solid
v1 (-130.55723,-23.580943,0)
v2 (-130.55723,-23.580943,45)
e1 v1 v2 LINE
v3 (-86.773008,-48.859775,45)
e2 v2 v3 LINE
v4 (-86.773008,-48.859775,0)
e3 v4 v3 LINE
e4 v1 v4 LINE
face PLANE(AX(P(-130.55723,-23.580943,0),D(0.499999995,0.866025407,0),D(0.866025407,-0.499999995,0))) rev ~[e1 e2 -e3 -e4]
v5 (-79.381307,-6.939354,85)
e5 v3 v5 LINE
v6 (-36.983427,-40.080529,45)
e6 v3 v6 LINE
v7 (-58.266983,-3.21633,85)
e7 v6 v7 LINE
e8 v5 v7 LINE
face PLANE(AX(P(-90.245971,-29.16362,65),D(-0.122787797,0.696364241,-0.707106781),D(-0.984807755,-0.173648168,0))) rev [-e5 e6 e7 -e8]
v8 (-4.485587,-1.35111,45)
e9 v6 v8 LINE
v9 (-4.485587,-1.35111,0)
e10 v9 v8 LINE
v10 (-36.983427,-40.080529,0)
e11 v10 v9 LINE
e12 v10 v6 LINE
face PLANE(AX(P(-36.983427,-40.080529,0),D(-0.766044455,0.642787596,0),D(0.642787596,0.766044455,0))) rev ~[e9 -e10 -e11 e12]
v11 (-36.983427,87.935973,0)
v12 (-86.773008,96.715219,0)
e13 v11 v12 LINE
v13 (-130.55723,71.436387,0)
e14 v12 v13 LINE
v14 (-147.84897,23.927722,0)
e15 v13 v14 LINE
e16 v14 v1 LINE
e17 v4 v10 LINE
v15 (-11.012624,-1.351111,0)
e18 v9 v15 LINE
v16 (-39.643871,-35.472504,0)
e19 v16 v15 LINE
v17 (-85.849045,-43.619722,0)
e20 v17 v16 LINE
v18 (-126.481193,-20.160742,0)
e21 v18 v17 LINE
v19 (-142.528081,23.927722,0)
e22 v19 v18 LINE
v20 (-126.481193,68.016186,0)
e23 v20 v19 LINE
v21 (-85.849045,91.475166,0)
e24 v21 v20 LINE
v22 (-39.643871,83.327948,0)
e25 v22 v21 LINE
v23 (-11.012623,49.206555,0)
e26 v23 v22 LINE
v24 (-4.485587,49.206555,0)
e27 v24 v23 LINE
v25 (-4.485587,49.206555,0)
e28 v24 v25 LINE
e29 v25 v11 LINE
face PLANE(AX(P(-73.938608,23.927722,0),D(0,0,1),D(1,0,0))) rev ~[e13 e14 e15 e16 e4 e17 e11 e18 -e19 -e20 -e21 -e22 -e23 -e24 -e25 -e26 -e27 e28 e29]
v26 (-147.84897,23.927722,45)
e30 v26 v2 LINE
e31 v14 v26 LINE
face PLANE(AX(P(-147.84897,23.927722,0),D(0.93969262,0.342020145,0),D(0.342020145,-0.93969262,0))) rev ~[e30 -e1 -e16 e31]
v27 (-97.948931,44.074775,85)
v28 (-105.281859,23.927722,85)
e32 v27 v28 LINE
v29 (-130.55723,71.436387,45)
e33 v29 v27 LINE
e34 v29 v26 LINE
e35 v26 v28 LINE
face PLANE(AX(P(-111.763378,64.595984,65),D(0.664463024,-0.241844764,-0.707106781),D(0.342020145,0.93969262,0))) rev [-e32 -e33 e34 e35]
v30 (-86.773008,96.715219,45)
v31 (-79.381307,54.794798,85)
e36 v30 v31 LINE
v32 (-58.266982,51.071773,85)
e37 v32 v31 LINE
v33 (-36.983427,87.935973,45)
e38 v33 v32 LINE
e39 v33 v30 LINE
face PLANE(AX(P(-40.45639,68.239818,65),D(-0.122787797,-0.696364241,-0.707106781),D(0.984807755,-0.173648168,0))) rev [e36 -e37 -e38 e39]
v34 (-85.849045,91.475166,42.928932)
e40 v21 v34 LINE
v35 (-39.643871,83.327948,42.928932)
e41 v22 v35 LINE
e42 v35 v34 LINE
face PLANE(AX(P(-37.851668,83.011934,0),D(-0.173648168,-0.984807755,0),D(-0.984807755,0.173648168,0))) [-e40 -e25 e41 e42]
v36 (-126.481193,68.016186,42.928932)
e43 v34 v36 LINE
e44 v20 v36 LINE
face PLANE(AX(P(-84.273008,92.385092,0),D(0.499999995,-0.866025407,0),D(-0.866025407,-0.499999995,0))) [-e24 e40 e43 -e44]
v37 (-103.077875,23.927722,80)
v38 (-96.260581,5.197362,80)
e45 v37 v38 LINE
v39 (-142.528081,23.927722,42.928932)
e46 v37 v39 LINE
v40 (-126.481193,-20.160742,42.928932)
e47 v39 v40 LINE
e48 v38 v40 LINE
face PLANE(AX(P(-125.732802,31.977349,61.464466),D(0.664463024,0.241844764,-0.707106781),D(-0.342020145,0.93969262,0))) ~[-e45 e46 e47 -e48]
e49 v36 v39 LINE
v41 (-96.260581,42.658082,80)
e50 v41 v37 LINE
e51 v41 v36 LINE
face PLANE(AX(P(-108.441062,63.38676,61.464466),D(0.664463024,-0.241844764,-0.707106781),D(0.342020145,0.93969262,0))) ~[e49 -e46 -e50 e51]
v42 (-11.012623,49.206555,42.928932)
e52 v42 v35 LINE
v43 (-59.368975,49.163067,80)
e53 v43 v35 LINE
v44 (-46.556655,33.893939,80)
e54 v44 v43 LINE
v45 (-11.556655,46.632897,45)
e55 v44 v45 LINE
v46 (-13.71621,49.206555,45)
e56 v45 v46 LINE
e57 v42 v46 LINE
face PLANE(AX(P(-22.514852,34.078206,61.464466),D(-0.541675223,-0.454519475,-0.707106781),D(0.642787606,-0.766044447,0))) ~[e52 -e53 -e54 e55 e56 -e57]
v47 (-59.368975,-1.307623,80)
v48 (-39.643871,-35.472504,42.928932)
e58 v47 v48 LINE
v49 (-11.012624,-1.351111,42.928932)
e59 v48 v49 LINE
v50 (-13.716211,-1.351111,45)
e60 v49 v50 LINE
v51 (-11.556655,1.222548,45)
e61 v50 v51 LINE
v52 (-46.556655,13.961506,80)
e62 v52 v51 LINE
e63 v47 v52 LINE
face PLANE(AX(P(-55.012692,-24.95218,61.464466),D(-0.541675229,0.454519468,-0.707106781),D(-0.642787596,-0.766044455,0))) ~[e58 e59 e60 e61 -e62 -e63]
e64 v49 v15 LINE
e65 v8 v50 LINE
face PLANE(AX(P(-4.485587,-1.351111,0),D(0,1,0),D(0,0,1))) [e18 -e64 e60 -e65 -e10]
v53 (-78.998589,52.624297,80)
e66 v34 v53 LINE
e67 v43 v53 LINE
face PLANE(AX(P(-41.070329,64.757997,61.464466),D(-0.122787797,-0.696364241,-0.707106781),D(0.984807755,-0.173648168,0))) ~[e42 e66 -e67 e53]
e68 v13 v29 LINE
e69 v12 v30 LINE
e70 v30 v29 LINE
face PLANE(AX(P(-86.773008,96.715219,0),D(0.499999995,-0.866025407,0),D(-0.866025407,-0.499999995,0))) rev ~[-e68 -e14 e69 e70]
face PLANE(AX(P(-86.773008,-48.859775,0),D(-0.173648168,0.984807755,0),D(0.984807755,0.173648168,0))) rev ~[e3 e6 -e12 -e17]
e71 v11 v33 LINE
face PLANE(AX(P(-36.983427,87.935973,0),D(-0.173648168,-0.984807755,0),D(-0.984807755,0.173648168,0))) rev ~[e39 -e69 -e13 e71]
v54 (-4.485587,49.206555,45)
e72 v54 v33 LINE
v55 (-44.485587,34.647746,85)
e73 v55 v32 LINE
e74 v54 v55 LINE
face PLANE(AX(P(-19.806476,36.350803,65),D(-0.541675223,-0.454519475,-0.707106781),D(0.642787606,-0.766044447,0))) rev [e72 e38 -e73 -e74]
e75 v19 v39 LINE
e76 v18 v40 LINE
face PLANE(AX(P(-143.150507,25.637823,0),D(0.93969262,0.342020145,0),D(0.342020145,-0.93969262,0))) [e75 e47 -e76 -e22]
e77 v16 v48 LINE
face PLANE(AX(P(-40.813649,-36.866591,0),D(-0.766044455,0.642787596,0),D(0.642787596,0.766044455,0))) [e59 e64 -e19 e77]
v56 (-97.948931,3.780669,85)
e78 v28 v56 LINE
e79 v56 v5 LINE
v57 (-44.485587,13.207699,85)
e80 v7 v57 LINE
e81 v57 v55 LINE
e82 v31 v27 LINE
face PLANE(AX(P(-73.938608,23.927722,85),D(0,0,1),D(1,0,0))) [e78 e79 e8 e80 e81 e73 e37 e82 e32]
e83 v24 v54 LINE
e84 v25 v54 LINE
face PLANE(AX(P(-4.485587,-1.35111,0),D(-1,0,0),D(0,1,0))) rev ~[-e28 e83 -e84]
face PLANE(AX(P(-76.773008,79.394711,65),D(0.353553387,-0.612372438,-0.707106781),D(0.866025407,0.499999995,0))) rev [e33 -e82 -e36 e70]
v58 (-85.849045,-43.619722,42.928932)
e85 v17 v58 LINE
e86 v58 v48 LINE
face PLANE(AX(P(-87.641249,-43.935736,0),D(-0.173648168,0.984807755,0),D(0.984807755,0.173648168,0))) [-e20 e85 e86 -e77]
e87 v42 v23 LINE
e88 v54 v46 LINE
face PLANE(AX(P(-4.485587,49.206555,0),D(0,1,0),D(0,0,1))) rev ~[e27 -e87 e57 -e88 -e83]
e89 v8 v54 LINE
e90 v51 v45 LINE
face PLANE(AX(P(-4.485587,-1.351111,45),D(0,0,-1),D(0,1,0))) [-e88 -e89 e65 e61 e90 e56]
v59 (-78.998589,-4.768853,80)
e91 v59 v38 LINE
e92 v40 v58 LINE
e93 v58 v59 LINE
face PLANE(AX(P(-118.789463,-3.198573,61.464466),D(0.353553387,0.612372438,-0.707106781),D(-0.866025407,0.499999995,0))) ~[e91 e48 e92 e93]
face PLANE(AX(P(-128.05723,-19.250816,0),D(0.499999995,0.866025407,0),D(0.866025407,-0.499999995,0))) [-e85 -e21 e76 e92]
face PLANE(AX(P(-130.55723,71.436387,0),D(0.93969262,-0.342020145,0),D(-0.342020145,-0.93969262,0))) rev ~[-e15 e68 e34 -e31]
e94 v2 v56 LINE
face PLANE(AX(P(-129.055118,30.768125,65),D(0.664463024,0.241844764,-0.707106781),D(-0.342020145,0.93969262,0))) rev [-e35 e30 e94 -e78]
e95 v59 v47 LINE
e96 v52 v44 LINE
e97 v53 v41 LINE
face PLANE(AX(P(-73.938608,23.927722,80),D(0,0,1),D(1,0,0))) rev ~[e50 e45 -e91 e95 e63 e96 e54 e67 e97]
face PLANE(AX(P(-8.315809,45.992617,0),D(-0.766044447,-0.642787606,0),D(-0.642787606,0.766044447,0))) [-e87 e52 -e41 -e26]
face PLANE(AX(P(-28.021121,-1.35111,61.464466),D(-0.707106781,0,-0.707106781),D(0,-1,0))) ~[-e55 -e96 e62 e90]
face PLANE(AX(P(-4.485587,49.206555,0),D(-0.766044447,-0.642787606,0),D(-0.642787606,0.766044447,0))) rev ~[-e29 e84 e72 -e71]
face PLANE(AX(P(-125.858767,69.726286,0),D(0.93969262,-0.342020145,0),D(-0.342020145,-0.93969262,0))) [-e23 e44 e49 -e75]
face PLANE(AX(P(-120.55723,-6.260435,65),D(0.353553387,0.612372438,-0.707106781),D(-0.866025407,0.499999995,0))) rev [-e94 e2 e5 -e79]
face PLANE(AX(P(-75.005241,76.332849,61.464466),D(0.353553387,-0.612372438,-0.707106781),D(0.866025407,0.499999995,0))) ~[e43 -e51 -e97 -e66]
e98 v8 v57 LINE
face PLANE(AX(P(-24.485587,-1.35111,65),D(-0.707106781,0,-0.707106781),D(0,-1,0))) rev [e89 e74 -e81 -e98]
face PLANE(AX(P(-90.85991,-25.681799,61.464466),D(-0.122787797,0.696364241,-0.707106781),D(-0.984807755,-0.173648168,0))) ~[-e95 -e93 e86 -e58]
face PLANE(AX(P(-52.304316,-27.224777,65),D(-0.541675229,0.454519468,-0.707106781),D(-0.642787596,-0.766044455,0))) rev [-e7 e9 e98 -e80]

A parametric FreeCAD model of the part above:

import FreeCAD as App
import Part
import Sketcher
Q = App.Units.Quantity


def edges_at(feature, points):
    """Names of the edges that pass closest to the given points."""
    edges = feature.Shape.Edges
    near = lambda p: min(range(len(edges)), key=lambda i: edges[i].distToShape(Part.Vertex(*p))[0])
    return sorted({f"Edge{near(p) + 1}" for p in points})


def faces_at(feature, points):
    """Names of the faces that lie closest to the given points."""
    faces = feature.Shape.Faces
    near = lambda p: min(range(len(faces)), key=lambda i: faces[i].distToShape(Part.Vertex(*p))[0])
    return sorted({f"Face{near(p) + 1}" for p in points})

doc = App.newDocument("Part")
body = doc.addObject("PartDesign::Body", "Body")

# Sketch on XY plane
sketch1 = doc.addObject("Sketcher::SketchObject", "Sketch")
body.addObject(sketch1)
sketch1.AttachmentSupport = (doc.XY_Plane, [""])
sketch1.MapMode = "FlatFace"
sketch1.addGeometry([
    Part.LineSegment(App.Vector(-4, -1, 0), App.Vector(-4, 49, 0)),  # 0
    Part.LineSegment(App.Vector(-4, 49, 0), App.Vector(-37, 88, 0)),  # 1
    Part.LineSegment(App.Vector(-37, 88, 0), App.Vector(-87, 97, 0)),  # 2
    Part.LineSegment(App.Vector(-87, 97, 0), App.Vector(-131, 71, 0)),  # 3
    Part.LineSegment(App.Vector(-131, 71, 0), App.Vector(-148, 24, 0)),  # 4
    Part.LineSegment(App.Vector(-148, 24, 0), App.Vector(-131, -24, 0)),  # 5
    Part.LineSegment(App.Vector(-131, -24, 0), App.Vector(-87, -49, 0)),  # 6
    Part.LineSegment(App.Vector(-87, -49, 0), App.Vector(-37, -40, 0)),  # 7
    Part.LineSegment(App.Vector(-37, -40, 0), App.Vector(-4, -1, 0)),  # 8
], False)
sketch1.addConstraint([
    Sketcher.Constraint("Coincident", 0, 2, 1, 1),
    Sketcher.Constraint("Coincident", 1, 2, 2, 1),
    Sketcher.Constraint("Coincident", 2, 2, 3, 1),
    Sketcher.Constraint("Coincident", 3, 2, 4, 1),
    Sketcher.Constraint("Coincident", 4, 2, 5, 1),
    Sketcher.Constraint("Coincident", 5, 2, 6, 1),
    Sketcher.Constraint("Coincident", 6, 2, 7, 1),
    Sketcher.Constraint("Coincident", 7, 2, 8, 1),
    Sketcher.Constraint("Coincident", 8, 2, 0, 1),
    Sketcher.Constraint("Vertical", 0),
    Sketcher.Constraint("Vertical", 3, 2, 5, 2),
    Sketcher.Constraint("Vertical", 2, 2, 6, 2),
    Sketcher.Constraint("Vertical", 1, 2, 7, 2),
    Sketcher.Constraint("Equal", 1, 2),
    Sketcher.Constraint("Equal", 2, 3),
    Sketcher.Constraint("Equal", 3, 4),
    Sketcher.Constraint("Equal", 4, 5),
    Sketcher.Constraint("Equal", 5, 6),
    Sketcher.Constraint("Equal", 6, 7),
    Sketcher.Constraint("Equal", 7, 8),
    Sketcher.Constraint("Angle", 1, Q("130 deg")),
    Sketcher.Constraint("Angle", 2, Q("170.000001 deg")),
    Sketcher.Constraint("Angle", 3, Q("-150 deg")),
    Sketcher.Constraint("Angle", 4, Q("-110 deg")),
    Sketcher.Constraint("DistanceY", 5, 2, 0, 2, 72.787498),
    Sketcher.Constraint("DistanceX", 2, 2, -1, 1, 86.773008),
    Sketcher.Constraint("DistanceY", -1, 1, 2, 2, 96.715219),
])
pad1 = doc.addObject("PartDesign::Pad", "Pad")
body.addObject(pad1)
pad1.Profile = sketch1
pad1.Length = 85
doc.recompute()

chamfer = doc.addObject("PartDesign::Chamfer", "Chamfer")
body.addObject(chamfer)
chamfer.Base = (pad1, edges_at(pad1, [
    (-20.735, -20.716, 85),
    (-4.486, 23.928, 85),
    (-20.735, 68.571, 85),
    (-61.878, 92.326, 85),
    (-108.665, 84.076, 85),
    (-139.203, 47.682, 85),
    (-139.203, 0.173, 85),
    (-108.665, -36.22, 85),
    (-61.878, -44.47, 85),
]))
chamfer.Size = 40
doc.recompute()

thickness = doc.addObject("PartDesign::Thickness", "Thickness")
body.addObject(thickness)
thickness.Base = (chamfer, faces_at(chamfer, [(-76.167, 23.928, 0)]))
thickness.Value = 5
thickness.Reversed = True
thickness.Join = "Arc"

# Sketch on YZ plane
sketch2 = doc.addObject("Sketcher::SketchObject", "Sketch001")
body.addObject(sketch2)
sketch2.AttachmentSupport = (doc.YZ_Plane, [""])
sketch2.MapMode = "FlatFace"
sketch2.AttachmentOffset = App.Placement(App.Vector(0, 0, -4.485587), App.Rotation())
sketch2.addGeometry([
    Part.LineSegment(App.Vector(-1, 45, 0), App.Vector(-1, 0, 0)),
    Part.LineSegment(App.Vector(-1, 0, 0), App.Vector(49, 0, 0)),
    Part.LineSegment(App.Vector(49, 0, 0), App.Vector(49, 45, 0)),
    Part.LineSegment(App.Vector(49, 45, 0), App.Vector(-1, 45, 0)),
], False)
sketch2.addConstraint([
    Sketcher.Constraint("Coincident", 0, 2, 1, 1),
    Sketcher.Constraint("Coincident", 1, 2, 2, 1),
    Sketcher.Constraint("Coincident", 2, 2, 3, 1),
    Sketcher.Constraint("Coincident", 3, 2, 0, 1),
    Sketcher.Constraint("Vertical", 0),
    Sketcher.Constraint("Horizontal", 1),
    Sketcher.Constraint("Vertical", 2),
    Sketcher.Constraint("Horizontal", 3),
    Sketcher.Constraint("PointOnObject", 0, 2, -1),
    Sketcher.Constraint("DistanceY", 0, 2, 0, 1, 45.0),
    Sketcher.Constraint("DistanceX", 1, 1, 1, 2, 50.557665),
    Sketcher.Constraint("DistanceX", 0, 2, -1, 1, 1.351111),
])
pocket1 = doc.addObject("PartDesign::Pocket", "Pocket")
body.addObject(pocket1)
pocket1.Profile = sketch2
pocket1.Length = 70

doc.recompute()
